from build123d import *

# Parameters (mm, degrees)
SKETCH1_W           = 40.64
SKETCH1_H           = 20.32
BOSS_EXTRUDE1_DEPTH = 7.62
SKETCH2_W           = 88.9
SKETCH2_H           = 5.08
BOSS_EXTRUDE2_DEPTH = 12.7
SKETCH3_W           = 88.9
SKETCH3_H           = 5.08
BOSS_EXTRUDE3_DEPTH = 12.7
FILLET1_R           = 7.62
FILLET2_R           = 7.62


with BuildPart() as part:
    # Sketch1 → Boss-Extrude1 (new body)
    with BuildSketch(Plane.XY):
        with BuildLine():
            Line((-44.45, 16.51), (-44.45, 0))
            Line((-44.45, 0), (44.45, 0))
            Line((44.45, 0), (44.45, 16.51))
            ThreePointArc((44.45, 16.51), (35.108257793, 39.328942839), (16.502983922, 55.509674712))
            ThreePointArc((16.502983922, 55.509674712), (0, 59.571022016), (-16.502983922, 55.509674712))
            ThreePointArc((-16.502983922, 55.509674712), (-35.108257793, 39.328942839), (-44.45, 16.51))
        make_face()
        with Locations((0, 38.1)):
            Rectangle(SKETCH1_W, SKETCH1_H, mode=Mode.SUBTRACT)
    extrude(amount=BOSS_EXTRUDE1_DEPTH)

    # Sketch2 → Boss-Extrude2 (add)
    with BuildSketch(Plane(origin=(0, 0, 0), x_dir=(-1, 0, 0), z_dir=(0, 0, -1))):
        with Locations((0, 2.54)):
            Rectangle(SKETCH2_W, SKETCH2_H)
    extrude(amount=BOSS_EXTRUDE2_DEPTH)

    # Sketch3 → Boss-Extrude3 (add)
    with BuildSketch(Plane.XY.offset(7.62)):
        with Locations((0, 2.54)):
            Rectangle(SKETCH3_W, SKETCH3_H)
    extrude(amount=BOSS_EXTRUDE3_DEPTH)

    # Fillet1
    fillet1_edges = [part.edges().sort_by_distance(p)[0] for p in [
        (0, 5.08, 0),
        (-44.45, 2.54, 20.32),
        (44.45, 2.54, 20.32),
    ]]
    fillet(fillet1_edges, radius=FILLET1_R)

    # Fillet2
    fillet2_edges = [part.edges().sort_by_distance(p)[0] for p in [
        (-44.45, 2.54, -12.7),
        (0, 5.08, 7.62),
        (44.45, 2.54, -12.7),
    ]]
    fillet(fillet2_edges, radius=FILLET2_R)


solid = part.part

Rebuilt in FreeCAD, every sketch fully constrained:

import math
import FreeCAD as App
import Part
import Sketcher
from FreeCAD import Vector
Q = App.Units.Quantity


def edges_at(feature, points):
    """Names of the edges that pass closest to the given points."""
    edges = feature.Shape.Edges
    near = lambda p: min(range(len(edges)), key=lambda i: edges[i].distToShape(Part.Vertex(*p))[0])
    return sorted({f"Edge{near(p) + 1}" for p in points})

doc = App.newDocument("Part")
body = doc.addObject("PartDesign::Body", "Body")

sketch1 = body.newObject("Sketcher::SketchObject", "Sketch")
sketch1.AttachmentSupport = (doc.getObject("XY_Plane"), [""])
sketch1.MapMode = "FlatFace"
sketch1.addGeometry([
    Part.LineSegment(Vector(-44.45, 16.51, 0), Vector(-44.45, 0, 0)),
    Part.LineSegment(Vector(-44.45, 0, 0), Vector(44.45, 0, 0)),
    Part.LineSegment(Vector(44.45, 0, 0), Vector(44.45, 16.51, 0)),
    Part.ArcOfCircle(Part.Circle(Vector(-8.255, 8.255, 0), Vector(0, 0, 1), 53.347559), math.radians(8.901716), math.radians(62.348758)),
    Part.ArcOfCircle(Part.Circle(Vector(0, 24.011022, 0), Vector(0, 0, 1), 35.56), math.radians(62.348758), math.radians(117.651242)),
    Part.ArcOfCircle(Part.Circle(Vector(8.255, 8.255, 0), Vector(0, 0, 1), 53.347559), math.radians(117.651242), math.radians(171.098284)),
    Part.LineSegment(Vector(20.32, 27.94, 0), Vector(-20.32, 27.94, 0)),
    Part.LineSegment(Vector(-20.32, 27.94, 0), Vector(-20.32, 48.26, 0)),
    Part.LineSegment(Vector(-20.32, 48.26, 0), Vector(20.32, 48.26, 0)),
    Part.LineSegment(Vector(20.32, 48.26, 0), Vector(20.32, 27.94, 0)),
], False)
sketch1.addConstraint([
    Sketcher.Constraint("Coincident", 0, 2, 1, 1),
    Sketcher.Constraint("Coincident", 1, 2, 2, 1),
    Sketcher.Constraint("Coincident", 2, 2, 3, 1),
    Sketcher.Constraint("Tangent", 3, 2, 4, 1),
    Sketcher.Constraint("Tangent", 4, 2, 5, 1),
    Sketcher.Constraint("Coincident", 5, 2, 0, 1),
    Sketcher.Constraint("Coincident", 6, 2, 7, 1),
    Sketcher.Constraint("Coincident", 7, 2, 8, 1),
    Sketcher.Constraint("Coincident", 8, 2, 9, 1),
    Sketcher.Constraint("Coincident", 9, 2, 6, 1),
    Sketcher.Constraint("Vertical", 0),
    Sketcher.Constraint("Horizontal", 1),
    Sketcher.Constraint("Vertical", 2),
    Sketcher.Constraint("Horizontal", 6),
    Sketcher.Constraint("Vertical", 7),
    Sketcher.Constraint("Horizontal", 8),
    Sketcher.Constraint("Vertical", 9),
    Sketcher.Constraint("Equal", 3, 5),
    Sketcher.Constraint("Symmetric", 0, 2, 1, 2, -1, 1),
    Sketcher.Constraint("Symmetric", 3, 3, 5, 3, -2),
    Sketcher.Constraint("Radius", 4, Q("1.4 in")),
    Sketcher.Constraint("DistanceX", 1, 1, 1, 2, Q("3.5 in")),
    Sketcher.Constraint("DistanceX", 6, 2, 6, 1, Q("1.6 in")),
    Sketcher.Constraint("DistanceY", 7, 1, 7, 2, Q("0.8 in")),
    Sketcher.Constraint("DistanceY", 0, 2, 0, 1, Q("0.65 in")),
    Sketcher.Constraint("DistanceX", 6, 2, -1, 1, Q("0.8 in")),
    Sketcher.Constraint("DistanceY", -1, 1, 6, 2, Q("1.1 in")),
    Sketcher.Constraint("DistanceX", 3, 3, 5, 3, Q("0.65 in")),
    Sketcher.Constraint("DistanceY", -1, 1, 3, 3, Q("0.325 in")),
])
pad1 = body.newObject("PartDesign::Pad", "Pad")
pad1.Profile = sketch1
pad1.Length = Q("0.3 in")

sketch2 = body.newObject("Sketcher::SketchObject", "Sketch001")
sketch2.AttachmentSupport = (doc.getObject("XY_Plane"), [""])
sketch2.MapMode = "FlatFace"
sketch2.addGeometry([
    Part.LineSegment(Vector(44.45, 5.08, 0), Vector(44.45, 0, 0)),
    Part.LineSegment(Vector(44.45, 0, 0), Vector(-44.45, 0, 0)),
    Part.LineSegment(Vector(-44.45, 0, 0), Vector(-44.45, 5.08, 0)),
    Part.LineSegment(Vector(-44.45, 5.08, 0), Vector(44.45, 5.08, 0)),
], False)
sketch2.addConstraint([
    Sketcher.Constraint("Coincident", 0, 2, 1, 1),
    Sketcher.Constraint("Coincident", 1, 2, 2, 1),
    Sketcher.Constraint("Coincident", 2, 2, 3, 1),
    Sketcher.Constraint("Coincident", 3, 2, 0, 1),
    Sketcher.Constraint("Vertical", 0),
    Sketcher.Constraint("Horizontal", 1),
    Sketcher.Constraint("Vertical", 2),
    Sketcher.Constraint("Horizontal", 3),
    Sketcher.Constraint("Symmetric", 0, 2, 1, 2, -1, 1),
    Sketcher.Constraint("DistanceX", 1, 2, 1, 1, Q("3.5 in")),
    Sketcher.Constraint("DistanceY", 0, 2, 0, 1, Q("0.2 in")),
])
pad2 = body.newObject("PartDesign::Pad", "Pad001")
pad2.Profile = sketch2
pad2.Length = Q("0.5 in")
pad2.Reversed = True

sketch3 = body.newObject("Sketcher::SketchObject", "Sketch002")
sketch3.AttachmentSupport = (doc.getObject("XY_Plane"), [""])
sketch3.MapMode = "FlatFace"
sketch3.AttachmentOffset = App.Placement(Vector(0, 0, 0.3 * 25.4), App.Rotation())
sketch3.addGeometry([
    Part.LineSegment(Vector(-44.45, 5.08, 0), Vector(-44.45, 0, 0)),
    Part.LineSegment(Vector(-44.45, 0, 0), Vector(44.45, 0, 0)),
    Part.LineSegment(Vector(44.45, 0, 0), Vector(44.45, 5.08, 0)),
    Part.LineSegment(Vector(44.45, 5.08, 0), Vector(-44.45, 5.08, 0)),
], False)
sketch3.addConstraint([
    Sketcher.Constraint("Coincident", 0, 2, 1, 1),
    Sketcher.Constraint("Coincident", 1, 2, 2, 1),
    Sketcher.Constraint("Coincident", 2, 2, 3, 1),
    Sketcher.Constraint("Coincident", 3, 2, 0, 1),
    Sketcher.Constraint("Vertical", 0),
    Sketcher.Constraint("Horizontal", 1),
    Sketcher.Constraint("Vertical", 2),
    Sketcher.Constraint("Horizontal", 3),
    Sketcher.Constraint("Symmetric", 0, 2, 1, 2, -1, 1),
    Sketcher.Constraint("DistanceX", 1, 1, 1, 2, Q("3.5 in")),
    Sketcher.Constraint("DistanceY", 0, 2, 0, 1, Q("0.2 in")),
])
pad3 = body.newObject("PartDesign::Pad", "Pad002")
pad3.Profile = sketch3
pad3.Length = Q("0.5 in")
doc.recompute()

fillet = body.newObject("PartDesign::Fillet", "Fillet")
fillet.Base = (pad3, edges_at(pad3, [(0, 5.08, 0), (-44.45, 2.54, 20.32), (44.45, 2.54, 20.32)]))
fillet.Radius = Q("0.3 in")
doc.recompute()

fillet2 = body.newObject("PartDesign::Fillet", "Fillet001")
fillet2.Base = (fillet, edges_at(fillet, [(-44.45, 2.54, -12.7), (0, 5.08, 7.62), (44.45, 2.54, -12.7)]))
fillet2.Radius = Q("0.3 in")

doc.recompute()
